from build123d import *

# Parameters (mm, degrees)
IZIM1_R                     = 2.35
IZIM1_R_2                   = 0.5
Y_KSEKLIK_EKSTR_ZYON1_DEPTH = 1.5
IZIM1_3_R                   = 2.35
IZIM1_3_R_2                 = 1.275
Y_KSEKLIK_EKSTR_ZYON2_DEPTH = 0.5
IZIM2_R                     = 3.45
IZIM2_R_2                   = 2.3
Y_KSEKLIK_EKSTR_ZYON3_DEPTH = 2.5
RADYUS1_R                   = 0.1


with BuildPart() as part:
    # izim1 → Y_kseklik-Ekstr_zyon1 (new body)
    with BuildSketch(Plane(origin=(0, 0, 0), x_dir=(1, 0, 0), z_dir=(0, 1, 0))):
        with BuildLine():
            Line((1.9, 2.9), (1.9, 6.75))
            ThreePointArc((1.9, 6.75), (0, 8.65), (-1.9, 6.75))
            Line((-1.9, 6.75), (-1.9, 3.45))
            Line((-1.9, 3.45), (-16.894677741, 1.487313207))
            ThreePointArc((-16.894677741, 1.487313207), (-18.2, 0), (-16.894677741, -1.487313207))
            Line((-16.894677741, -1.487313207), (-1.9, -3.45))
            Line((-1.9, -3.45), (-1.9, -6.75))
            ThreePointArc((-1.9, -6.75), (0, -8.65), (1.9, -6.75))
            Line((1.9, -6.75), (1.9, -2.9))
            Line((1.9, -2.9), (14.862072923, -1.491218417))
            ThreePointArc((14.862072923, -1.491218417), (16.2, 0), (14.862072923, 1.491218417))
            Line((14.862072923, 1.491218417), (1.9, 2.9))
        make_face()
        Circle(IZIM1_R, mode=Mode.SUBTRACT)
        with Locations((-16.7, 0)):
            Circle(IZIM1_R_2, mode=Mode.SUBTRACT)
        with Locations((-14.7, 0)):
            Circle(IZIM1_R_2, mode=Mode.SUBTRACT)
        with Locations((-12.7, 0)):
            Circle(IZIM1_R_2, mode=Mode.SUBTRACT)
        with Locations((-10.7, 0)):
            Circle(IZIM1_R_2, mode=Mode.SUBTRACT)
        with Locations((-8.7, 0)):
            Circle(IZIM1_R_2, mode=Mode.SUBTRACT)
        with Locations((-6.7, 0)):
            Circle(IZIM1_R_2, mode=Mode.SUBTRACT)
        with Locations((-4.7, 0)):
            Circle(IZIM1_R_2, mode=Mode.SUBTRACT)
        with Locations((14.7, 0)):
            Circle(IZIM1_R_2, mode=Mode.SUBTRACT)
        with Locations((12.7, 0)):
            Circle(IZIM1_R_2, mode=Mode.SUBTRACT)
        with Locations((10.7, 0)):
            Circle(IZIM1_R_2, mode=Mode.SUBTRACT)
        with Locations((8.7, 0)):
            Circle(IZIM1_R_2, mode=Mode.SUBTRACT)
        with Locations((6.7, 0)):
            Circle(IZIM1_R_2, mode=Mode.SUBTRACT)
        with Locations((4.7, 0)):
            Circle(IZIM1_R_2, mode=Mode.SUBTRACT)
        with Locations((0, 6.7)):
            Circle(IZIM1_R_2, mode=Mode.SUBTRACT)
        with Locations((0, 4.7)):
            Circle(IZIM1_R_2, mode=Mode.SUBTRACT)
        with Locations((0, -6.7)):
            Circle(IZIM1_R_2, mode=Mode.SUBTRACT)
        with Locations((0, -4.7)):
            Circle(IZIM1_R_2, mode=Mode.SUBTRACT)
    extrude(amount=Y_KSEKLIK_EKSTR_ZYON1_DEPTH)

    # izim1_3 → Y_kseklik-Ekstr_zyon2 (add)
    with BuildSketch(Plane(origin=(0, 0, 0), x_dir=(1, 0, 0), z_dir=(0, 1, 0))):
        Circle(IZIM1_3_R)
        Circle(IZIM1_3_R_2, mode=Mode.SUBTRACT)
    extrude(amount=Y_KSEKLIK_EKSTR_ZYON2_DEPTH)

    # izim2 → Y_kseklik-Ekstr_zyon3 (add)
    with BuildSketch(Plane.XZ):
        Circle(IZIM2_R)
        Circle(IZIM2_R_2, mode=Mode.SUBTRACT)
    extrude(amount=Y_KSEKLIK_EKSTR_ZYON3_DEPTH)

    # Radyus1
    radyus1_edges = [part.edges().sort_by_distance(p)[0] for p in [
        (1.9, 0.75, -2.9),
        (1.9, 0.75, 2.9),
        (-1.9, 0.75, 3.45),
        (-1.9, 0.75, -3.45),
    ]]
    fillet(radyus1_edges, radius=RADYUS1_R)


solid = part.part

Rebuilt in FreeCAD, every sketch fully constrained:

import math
import FreeCAD as App
import Part
import Sketcher
Q = App.Units.Quantity


def edges_at(feature, points):
    """Names of the edges that pass closest to the given points."""
    edges = feature.Shape.Edges
    near = lambda p: min(range(len(edges)), key=lambda i: edges[i].distToShape(Part.Vertex(*p))[0])
    return sorted({f"Edge{near(p) + 1}" for p in points})

doc = App.newDocument("Part")
body = doc.addObject("PartDesign::Body", "Body")

sketch1 = body.newObject("Sketcher::SketchObject", "Sketch")
sketch1.AttachmentSupport = (doc.getObject("XZ_Plane"), [""])
sketch1.MapMode = "FlatFace"
sketch1.addGeometry([
    Part.LineSegment(App.Vector(1.9, -2.9, 0), App.Vector(1.9, -6.8, 0)),
    Part.ArcOfCircle(Part.Circle(App.Vector(0, -6.8, 0), App.Vector(0, 0, 1), 1.9), math.radians(180), math.radians(360)),
    Part.LineSegment(App.Vector(-1.9, -6.8, 0), App.Vector(-1.9, -3.5, 0)),
    Part.LineSegment(App.Vector(-1.9, -3.5, 0), App.Vector(-16.9, -1.5, 0)),
    Part.ArcOfCircle(Part.Circle(App.Vector(-16.7, 0, 0), App.Vector(0, 0, 1), 1.5), math.radians(97), math.radians(263)),
    Part.LineSegment(App.Vector(-16.9, 1.5, 0), App.Vector(-1.9, 3.5, 0)),
    Part.LineSegment(App.Vector(-1.9, 3.5, 0), App.Vector(-1.9, 6.8, 0)),
    Part.ArcOfCircle(Part.Circle(App.Vector(0, 6.8, 0), App.Vector(0, 0, 1), 1.9), math.radians(0), math.radians(180)),
    Part.LineSegment(App.Vector(1.9, 6.8, 0), App.Vector(1.9, 2.9, 0)),
    Part.LineSegment(App.Vector(1.9, 2.9, 0), App.Vector(14.9, 1.5, 0)),
    Part.ArcOfCircle(Part.Circle(App.Vector(14.7, 0, 0), App.Vector(0, 0, 1), 1.5), math.radians(-84), math.radians(84)),
    Part.LineSegment(App.Vector(14.9, -1.5, 0), App.Vector(1.9, -2.9, 0)),
    Part.Circle(App.Vector(0, 6.7, 0), App.Vector(0, 0, 1), 0.5),
    Part.Circle(App.Vector(0, 4.7, 0), App.Vector(0, 0, 1), 0.5),
    Part.Circle(App.Vector(-16.7, 0, 0), App.Vector(0, 0, 1), 0.5),
    Part.Circle(App.Vector(-14.7, 0, 0), App.Vector(0, 0, 1), 0.5),
    Part.Circle(App.Vector(-12.7, 0, 0), App.Vector(0, 0, 1), 0.5),
    Part.Circle(App.Vector(-10.7, 0, 0), App.Vector(0, 0, 1), 0.5),
    Part.Circle(App.Vector(-8.7, 0, 0), App.Vector(0, 0, 1), 0.5),
    Part.Circle(App.Vector(-6.7, 0, 0), App.Vector(0, 0, 1), 0.5),
    Part.Circle(App.Vector(-4.7, 0, 0), App.Vector(0, 0, 1), 0.5),
    Part.Circle(App.Vector(0, 0, 0), App.Vector(0, 0, 1), 2.4),
    Part.Circle(App.Vector(4.7, 0, 0), App.Vector(0, 0, 1), 0.5),
    Part.Circle(App.Vector(6.7, 0, 0), App.Vector(0, 0, 1), 0.5),
    Part.Circle(App.Vector(8.7, 0, 0), App.Vector(0, 0, 1), 0.5),
    Part.Circle(App.Vector(10.7, 0, 0), App.Vector(0, 0, 1), 0.5),
    Part.Circle(App.Vector(12.7, 0, 0), App.Vector(0, 0, 1), 0.5),
    Part.Circle(App.Vector(14.7, 0, 0), App.Vector(0, 0, 1), 0.5),
    Part.Circle(App.Vector(0, -4.7, 0), App.Vector(0, 0, 1), 0.5),
    Part.Circle(App.Vector(0, -6.7, 0), App.Vector(0, 0, 1), 0.5),
], False)
sketch1.addConstraint([
    Sketcher.Constraint("Tangent", 0, 2, 1, 2),
    Sketcher.Constraint("Tangent", 1, 1, 2, 1),
    Sketcher.Constraint("Coincident", 2, 2, 3, 1),
    Sketcher.Constraint("Tangent", 3, 2, 4, 2),
    Sketcher.Constraint("Tangent", 4, 1, 5, 1),
    Sketcher.Constraint("Coincident", 5, 2, 6, 1),
    Sketcher.Constraint("Tangent", 6, 2, 7, 2),
    Sketcher.Constraint("Tangent", 7, 1, 8, 1),
    Sketcher.Constraint("Coincident", 8, 2, 9, 1),
    Sketcher.Constraint("Tangent", 9, 2, 10, 2),
    Sketcher.Constraint("Tangent", 10, 1, 11, 1),
    Sketcher.Constraint("Coincident", 11, 2, 0, 1),
    Sketcher.Constraint("Vertical", 0),
    Sketcher.Constraint("Vertical", 2),
    Sketcher.Constraint("Vertical", 6),
    Sketcher.Constraint("Vertical", 8),
    Sketcher.Constraint("Coincident", 21, 3, -1, 1),
    Sketcher.Constraint("Coincident", 14, 3, 4, 3),
    Sketcher.Constraint("Coincident", 27, 3, 10, 3),
    Sketcher.Constraint("Equal", 1, 7),
    Sketcher.Constraint("Equal", 4, 10),
    Sketcher.Constraint("Equal", 12, 13),
    Sketcher.Constraint("Equal", 13, 14),
    Sketcher.Constraint("Equal", 14, 15),
    Sketcher.Constraint("Equal", 15, 16),
    Sketcher.Constraint("Equal", 16, 17),
    Sketcher.Constraint("Equal", 17, 18),
    Sketcher.Constraint("Equal", 18, 19),
    Sketcher.Constraint("Equal", 19, 20),
    Sketcher.Constraint("Equal", 20, 22),
    Sketcher.Constraint("Equal", 22, 23),
    Sketcher.Constraint("Equal", 23, 24),
    Sketcher.Constraint("Equal", 24, 25),
    Sketcher.Constraint("Equal", 25, 26),
    Sketcher.Constraint("Equal", 26, 27),
    Sketcher.Constraint("Equal", 27, 28),
    Sketcher.Constraint("Equal", 28, 29),
    Sketcher.Constraint("Symmetric", 1, 3, 7, 3, -1, 1),
    Sketcher.Constraint("Symmetric", 10, 3, 15, 3, -1, 1),
    Sketcher.Constraint("Symmetric", 20, 3, 22, 3, -1, 1),
    Sketcher.Constraint("Symmetric", 19, 3, 23, 3, -1, 1),
    Sketcher.Constraint("Symmetric", 18, 3, 24, 3, -1, 1),
    Sketcher.Constraint("Symmetric", 17, 3, 25, 3, -1, 1),
    Sketcher.Constraint("Symmetric", 16, 3, 26, 3, -1, 1),
    Sketcher.Constraint("Symmetric", 13, 3, 28, 3, -1, 1),
    Sketcher.Constraint("Symmetric", 12, 3, 29, 3, -1, 1),
    Sketcher.Constraint("Symmetric", 3, 2, 4, 1, -1),
    Sketcher.Constraint("Symmetric", 9, 2, 10, 1, -1),
    Sketcher.Constraint("PointOnObject", 1, 3, -2),
    Sketcher.Constraint("PointOnObject", 12, 3, -2),
    Sketcher.Constraint("PointOnObject", 13, 3, -2),
    Sketcher.Constraint("PointOnObject", 16, 3, -1),
    Sketcher.Constraint("PointOnObject", 17, 3, -1),
    Sketcher.Constraint("PointOnObject", 18, 3, -1),
    Sketcher.Constraint("PointOnObject", 19, 3, -1),
    Sketcher.Constraint("PointOnObject", 20, 3, -1),
    Sketcher.Constraint("Diameter", 12, Q("1 mm")),
    Sketcher.Constraint("Diameter", 21, Q("4.7 mm")),
    Sketcher.Constraint("Radius", 1, Q("1.9 mm")),
    Sketcher.Constraint("Radius", 4, Q("1.5 mm")),
    Sketcher.Constraint("DistanceY", 2, 1, 2, 2, Q("3.3 mm")),
    Sketcher.Constraint("DistanceY", 13, 3, 12, 3, Q("2 mm")),
    Sketcher.Constraint("DistanceX", 14, 3, 15, 3, Q("2 mm")),
    Sketcher.Constraint("DistanceX", 15, 3, 16, 3, Q("2 mm")),
    Sketcher.Constraint("DistanceX", 16, 3, 17, 3, Q("2 mm")),
    Sketcher.Constraint("DistanceX", 17, 3, 18, 3, Q("2 mm")),
    Sketcher.Constraint("DistanceX", 18, 3, 19, 3, Q("2 mm")),
    Sketcher.Constraint("DistanceX", 19, 3, 20, 3, Q("2 mm")),
    Sketcher.Constraint("DistanceY", 0, 2, 0, 1, Q("3.85 mm")),
    Sketcher.Constraint("DistanceX", 4, 3, -1, 1, Q("16.7 mm")),
    Sketcher.Constraint("DistanceY", -1, 1, 12, 3, Q("6.7 mm")),
    Sketcher.Constraint("DistanceY", -1, 1, 8, 2, Q("2.9 mm")),
])
pad1 = body.newObject("PartDesign::Pad", "Pad")
pad1.Profile = sketch1
pad1.Length = 1.5
pad1.Reversed = True

sketch2 = body.newObject("Sketcher::SketchObject", "Sketch001")
sketch2.AttachmentSupport = (doc.getObject("XZ_Plane"), [""])
sketch2.MapMode = "FlatFace"
sketch2.addGeometry([
    Part.Circle(App.Vector(0, 0, 0), App.Vector(0, 0, 1), 2.4),
    Part.Circle(App.Vector(0, 0, 0), App.Vector(0, 0, 1), 1.3),
], False)
sketch2.addConstraint([
    Sketcher.Constraint("Coincident", 0, 3, -1, 1),
    Sketcher.Constraint("Coincident", 1, 3, -1, 1),
    Sketcher.Constraint("Diameter", 0, Q("4.7 mm")),
    Sketcher.Constraint("Diameter", 1, Q("2.55 mm")),
])
pad2 = body.newObject("PartDesign::Pad", "Pad001")
pad2.Profile = sketch2
pad2.Length = 0.5
pad2.Reversed = True

sketch3 = body.newObject("Sketcher::SketchObject", "Sketch002")
sketch3.AttachmentSupport = (doc.getObject("XZ_Plane"), [""])
sketch3.MapMode = "FlatFace"
sketch3.addGeometry([
    Part.Circle(App.Vector(0, 0, 0), App.Vector(0, 0, 1), 3.5),
    Part.Circle(App.Vector(0, 0, 0), App.Vector(0, 0, 1), 2.3),
], False)
sketch3.addConstraint([
    Sketcher.Constraint("Coincident", 0, 3, -1, 1),
    Sketcher.Constraint("Coincident", 1, 3, -1, 1),
    Sketcher.Constraint("Diameter", 0, Q("6.9 mm")),
    Sketcher.Constraint("Diameter", 1, Q("4.6 mm")),
])
pad3 = body.newObject("PartDesign::Pad", "Pad002")
pad3.Profile = sketch3
pad3.Length = 2.5
doc.recompute()

fillet = body.newObject("PartDesign::Fillet", "Fillet")
fillet.Base = (pad3, edges_at(pad3, [
    (1.9, 0.75, -2.9),
    (1.9, 0.75, 2.9),
    (-1.9, 0.75, 3.45),
    (-1.9, 0.75, -3.45),
]))
fillet.Radius = 0.1

doc.recompute()
